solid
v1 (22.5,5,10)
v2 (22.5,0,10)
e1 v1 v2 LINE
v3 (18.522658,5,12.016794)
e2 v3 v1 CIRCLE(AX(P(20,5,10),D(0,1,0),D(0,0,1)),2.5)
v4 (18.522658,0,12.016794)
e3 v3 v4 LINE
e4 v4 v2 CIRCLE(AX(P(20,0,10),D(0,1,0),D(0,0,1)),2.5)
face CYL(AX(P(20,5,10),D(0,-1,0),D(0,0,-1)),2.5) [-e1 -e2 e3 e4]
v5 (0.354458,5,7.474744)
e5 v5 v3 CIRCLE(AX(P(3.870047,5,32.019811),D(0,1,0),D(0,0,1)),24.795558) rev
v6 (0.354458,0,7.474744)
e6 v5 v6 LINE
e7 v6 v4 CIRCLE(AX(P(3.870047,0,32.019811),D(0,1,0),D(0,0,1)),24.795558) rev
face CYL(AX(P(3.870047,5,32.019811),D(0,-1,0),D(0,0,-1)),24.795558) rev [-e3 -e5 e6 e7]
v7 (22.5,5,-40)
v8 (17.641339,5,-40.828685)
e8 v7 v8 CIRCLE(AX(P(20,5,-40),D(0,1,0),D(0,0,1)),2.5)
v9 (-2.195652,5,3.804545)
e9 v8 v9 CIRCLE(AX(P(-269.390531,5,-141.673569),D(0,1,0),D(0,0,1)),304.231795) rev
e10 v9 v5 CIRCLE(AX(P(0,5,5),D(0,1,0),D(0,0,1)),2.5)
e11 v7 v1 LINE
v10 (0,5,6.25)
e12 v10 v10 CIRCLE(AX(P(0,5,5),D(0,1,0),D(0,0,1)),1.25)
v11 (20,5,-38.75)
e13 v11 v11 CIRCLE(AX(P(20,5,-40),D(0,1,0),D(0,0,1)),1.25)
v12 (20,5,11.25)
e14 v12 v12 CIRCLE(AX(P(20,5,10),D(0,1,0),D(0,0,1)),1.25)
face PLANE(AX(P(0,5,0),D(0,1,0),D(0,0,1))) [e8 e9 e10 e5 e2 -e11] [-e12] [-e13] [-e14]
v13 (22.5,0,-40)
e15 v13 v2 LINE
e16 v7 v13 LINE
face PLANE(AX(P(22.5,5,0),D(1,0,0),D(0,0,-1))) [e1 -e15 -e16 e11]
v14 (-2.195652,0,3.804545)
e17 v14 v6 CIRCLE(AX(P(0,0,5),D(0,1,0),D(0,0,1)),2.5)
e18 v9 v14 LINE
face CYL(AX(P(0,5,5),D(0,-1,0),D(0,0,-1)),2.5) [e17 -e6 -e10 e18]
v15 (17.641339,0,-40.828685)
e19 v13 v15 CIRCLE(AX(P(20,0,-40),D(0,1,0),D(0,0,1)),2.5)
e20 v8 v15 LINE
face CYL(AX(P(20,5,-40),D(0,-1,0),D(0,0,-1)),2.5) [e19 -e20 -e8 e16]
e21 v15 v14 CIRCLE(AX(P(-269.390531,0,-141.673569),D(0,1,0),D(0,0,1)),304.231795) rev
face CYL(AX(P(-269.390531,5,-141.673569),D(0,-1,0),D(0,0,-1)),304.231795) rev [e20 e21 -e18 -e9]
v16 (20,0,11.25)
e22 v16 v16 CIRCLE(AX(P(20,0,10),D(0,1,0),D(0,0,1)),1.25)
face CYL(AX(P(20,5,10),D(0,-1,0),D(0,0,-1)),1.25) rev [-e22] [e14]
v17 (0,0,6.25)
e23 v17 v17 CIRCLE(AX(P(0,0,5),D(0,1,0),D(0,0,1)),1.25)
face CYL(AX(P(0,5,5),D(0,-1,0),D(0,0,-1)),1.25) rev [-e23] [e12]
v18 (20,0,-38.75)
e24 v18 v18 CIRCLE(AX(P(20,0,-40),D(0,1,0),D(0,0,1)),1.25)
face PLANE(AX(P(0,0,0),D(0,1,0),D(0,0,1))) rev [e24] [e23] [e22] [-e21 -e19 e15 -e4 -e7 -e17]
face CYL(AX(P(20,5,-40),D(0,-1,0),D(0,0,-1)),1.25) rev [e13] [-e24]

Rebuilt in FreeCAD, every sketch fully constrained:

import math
import FreeCAD as App
import Part
import Sketcher
from FreeCAD import Vector

doc = App.newDocument("Part")
body = doc.addObject("PartDesign::Body", "Body")

# Sketch on XZ plane
sketch1 = body.newObject("Sketcher::SketchObject", "Sketch")
sketch1.AttachmentSupport = (doc.getObject("XZ_Plane"), [""])
sketch1.MapMode = "FlatFace"
sketch1.addGeometry([
    Part.ArcOfCircle(Part.Circle(Vector(0, 5, 0), Vector(0, 0, 1), 2.5), math.radians(82), math.radians(209)),  # 0
    Part.ArcOfCircle(Part.Circle(Vector(3.9, 32, 0), Vector(0, 0, 1), 24.8), math.radians(-98), math.radians(-54)),  # 1
    Part.ArcOfCircle(Part.Circle(Vector(20, 10, 0), Vector(0, 0, 1), 2.5), math.radians(0), math.radians(126)),  # 2
    Part.LineSegment(Vector(22.5, 10, 0), Vector(22.5, -40, 0)),  # 3
    Part.ArcOfCircle(Part.Circle(Vector(20, -40, 0), Vector(0, 0, 1), 2.5), math.radians(-161), math.radians(0)),  # 4
    Part.ArcOfCircle(Part.Circle(Vector(-269.4, -141.7, 0), Vector(0, 0, 1), 304.2), math.radians(19.36), math.radians(28.57)),  # 5
    Part.Circle(Vector(0, 5, 0), Vector(0, 0, 1), 1.2),  # 6
    Part.Circle(Vector(20, -40, 0), Vector(0, 0, 1), 1.2),  # 7
    Part.Circle(Vector(20, 10, 0), Vector(0, 0, 1), 1.2),  # 8
], False)
sketch1.addConstraint([
    Sketcher.Constraint("Tangent", 0, 1, 1, 1),
    Sketcher.Constraint("Tangent", 1, 2, 2, 2),
    Sketcher.Constraint("Tangent", 2, 1, 3, 1),
    Sketcher.Constraint("Tangent", 3, 2, 4, 2),
    Sketcher.Constraint("Tangent", 4, 1, 5, 1),
    Sketcher.Constraint("Tangent", 5, 2, 0, 2),
    Sketcher.Constraint("Vertical", 3),
    Sketcher.Constraint("Coincident", 6, 3, 0, 3),
    Sketcher.Constraint("Coincident", 7, 3, 4, 3),
    Sketcher.Constraint("Coincident", 8, 3, 2, 3),
    Sketcher.Constraint("Equal", 0, 2),
    Sketcher.Constraint("Equal", 2, 4),
    Sketcher.Constraint("Equal", 6, 7),
    Sketcher.Constraint("Equal", 7, 8),
    Sketcher.Constraint("PointOnObject", 0, 3, -2),
    Sketcher.Constraint("Diameter", 6, 2.5),
    Sketcher.Constraint("Radius", 0, 2.5),
    Sketcher.Constraint("DistanceY", 3, 2, 3, 1, 50.0),
    Sketcher.Constraint("DistanceY", -1, 1, 0, 3, 5.0),
    Sketcher.Constraint("DistanceX", -1, 1, 2, 3, 20.0),
    Sketcher.Constraint("DistanceY", -1, 1, 2, 3, 10.0),
    Sketcher.Constraint("Radius", 1, 24.795558),
    Sketcher.Constraint("Radius", 5, 304.231795),
])
pad1 = body.newObject("PartDesign::Pad", "Pad")
pad1.Profile = sketch1
pad1.Length = 5
pad1.Reversed = True

doc.recompute()
